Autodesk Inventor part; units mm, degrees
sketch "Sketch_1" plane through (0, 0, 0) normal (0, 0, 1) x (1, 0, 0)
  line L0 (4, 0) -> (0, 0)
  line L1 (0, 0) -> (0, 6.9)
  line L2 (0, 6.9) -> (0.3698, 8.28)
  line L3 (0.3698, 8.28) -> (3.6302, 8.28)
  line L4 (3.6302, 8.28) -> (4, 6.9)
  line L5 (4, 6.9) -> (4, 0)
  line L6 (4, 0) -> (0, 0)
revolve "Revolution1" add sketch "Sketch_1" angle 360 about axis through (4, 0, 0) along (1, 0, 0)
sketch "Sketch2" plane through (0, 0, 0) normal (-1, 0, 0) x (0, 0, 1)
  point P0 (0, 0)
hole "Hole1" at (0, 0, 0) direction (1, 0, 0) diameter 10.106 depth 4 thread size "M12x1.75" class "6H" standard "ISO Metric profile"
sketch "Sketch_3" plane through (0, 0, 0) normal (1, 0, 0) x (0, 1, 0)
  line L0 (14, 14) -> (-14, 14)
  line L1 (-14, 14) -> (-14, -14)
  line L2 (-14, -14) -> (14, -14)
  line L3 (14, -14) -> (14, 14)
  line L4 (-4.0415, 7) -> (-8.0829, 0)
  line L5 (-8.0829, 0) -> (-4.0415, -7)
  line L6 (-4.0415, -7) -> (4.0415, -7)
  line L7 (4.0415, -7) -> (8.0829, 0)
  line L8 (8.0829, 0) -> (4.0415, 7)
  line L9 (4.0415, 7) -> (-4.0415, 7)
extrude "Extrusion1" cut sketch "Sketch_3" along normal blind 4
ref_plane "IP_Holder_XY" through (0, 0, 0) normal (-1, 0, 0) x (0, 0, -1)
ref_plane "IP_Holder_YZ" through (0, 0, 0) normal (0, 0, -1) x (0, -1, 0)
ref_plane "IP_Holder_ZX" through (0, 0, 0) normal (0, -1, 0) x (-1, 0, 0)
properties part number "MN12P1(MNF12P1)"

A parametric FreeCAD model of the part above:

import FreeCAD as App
import Part
import Sketcher
from FreeCAD import Vector
Q = App.Units.Quantity

doc = App.newDocument("Part")
params = doc.addObject("Spreadsheet::Sheet", "Params")
for row, (alias, value) in enumerate([
    ("sketch1_width", "4 mm"),
    ("sketch1_height", "6.9 mm"),
    ("revolution_angle", "360 deg"),
    ("hole_diameter", "10.106 mm"),
    ("hole_depth", "4 mm"),
    ("sketch3_width", "28 mm"),
    ("pocket1_length", "4 mm"),
], start=1):
    params.set(f"A{row}", alias)
    params.set(f"B{row}", "=" + value)
    params.setAlias(f"B{row}", alias)

body = doc.addObject("PartDesign::Body", "Body")

# Sketch on XY plane
sketch1 = body.newObject("Sketcher::SketchObject", "Sketch")
sketch1.AttachmentSupport = (doc.getObject("XY_Plane"), [""])
sketch1.MapMode = "FlatFace"
sketch1.addGeometry(Part.LineSegment(Vector(0, 0, 0), Vector(4, 0, 0)), False)
sketch1.addGeometry(Part.LineSegment(Vector(4, 0, 0), Vector(4, 6.9, 0)), False)
sketch1.addGeometry(Part.LineSegment(Vector(4, 6.9, 0), Vector(3.6, 8.3, 0)), False)
sketch1.addGeometry(Part.LineSegment(Vector(3.6, 8.3, 0), Vector(0.4, 8.3, 0)), False)
sketch1.addGeometry(Part.LineSegment(Vector(0.4, 8.3, 0), Vector(0, 6.9, 0)), False)
sketch1.addGeometry(Part.LineSegment(Vector(0, 6.9, 0), Vector(0, 0, 0)), False)
sketch1.addConstraint(Sketcher.Constraint("Coincident", 0, 2, 1, 1))
sketch1.addConstraint(Sketcher.Constraint("Coincident", 1, 2, 2, 1))
sketch1.addConstraint(Sketcher.Constraint("Coincident", 2, 2, 3, 1))
sketch1.addConstraint(Sketcher.Constraint("Coincident", 3, 2, 4, 1))
sketch1.addConstraint(Sketcher.Constraint("Coincident", 4, 2, 5, 1))
sketch1.addConstraint(Sketcher.Constraint("Coincident", 5, 2, 0, 1))
sketch1.addConstraint(Sketcher.Constraint("Horizontal", 0))
sketch1.addConstraint(Sketcher.Constraint("Vertical", 1))
sketch1.addConstraint(Sketcher.Constraint("Horizontal", 3))
sketch1.addConstraint(Sketcher.Constraint("Vertical", 5))
sketch1.addConstraint(Sketcher.Constraint("Coincident", 5, 2, -1, 1))
sketch1.addConstraint(Sketcher.Constraint("Horizontal", 1, 2, 4, 2))
sketch1.addConstraint(Sketcher.Constraint("Equal", 2, 4))
sketch1.addConstraint(Sketcher.Constraint("DistanceX", 0, 1, 0, 2, Q("4 mm")))
sketch1.addConstraint(Sketcher.Constraint("Angle", 2, Q("105.0012 deg")))
sketch1.addConstraint(Sketcher.Constraint("DistanceY", 1, 1, 1, 2, Q("6.9 mm")))
sketch1.addConstraint(Sketcher.Constraint("DistanceY", -1, 1, 2, 2, Q("8.28 mm")))
sketch1.setExpression("Constraints[13]", "Params.sketch1_width")
sketch1.setExpression("Constraints[15]", "Params.sketch1_height")
revolution = body.newObject("PartDesign::Revolution", "Revolution")
revolution.Profile = sketch1
revolution.ReferenceAxis = (sketch1, ["H_Axis"])
revolution.setExpression("Angle", "Params.revolution_angle")

# Sketch on YZ plane
sketch2 = body.newObject("Sketcher::SketchObject", "Sketch001")
sketch2.AttachmentSupport = (doc.getObject("YZ_Plane"), [""])
sketch2.MapMode = "FlatFace"
sketch2.addGeometry(Part.Circle(Vector(0, 0, 0), Vector(0, 0, 1), 5), False)
sketch2.addConstraint(Sketcher.Constraint("Coincident", 0, 3, -1, 1))
sketch2.addConstraint(Sketcher.Constraint("Diameter", 0, Q("10.106 mm")))
doc.recompute()
hole = body.newObject("PartDesign::Hole", "Hole")
hole.Profile = sketch2
hole.ThreadType = "None"
hole.setExpression("Diameter", "Params.hole_diameter")
hole.DepthType = "Dimension"
hole.setExpression("Depth", "Params.hole_depth")
hole.DrillPoint = "Flat"
hole.Reversed = True

# Sketch on YZ plane
sketch3 = body.newObject("Sketcher::SketchObject", "Sketch002")
sketch3.AttachmentSupport = (doc.getObject("YZ_Plane"), [""])
sketch3.MapMode = "FlatFace"
sketch3.addGeometry(Part.LineSegment(Vector(14, -14, 0), Vector(14, 14, 0)), False)
sketch3.addGeometry(Part.LineSegment(Vector(14, 14, 0), Vector(-14, 14, 0)), False)
sketch3.addGeometry(Part.LineSegment(Vector(-14, 14, 0), Vector(-14, -14, 0)), False)
sketch3.addGeometry(Part.LineSegment(Vector(-14, -14, 0), Vector(14, -14, 0)), False)
sketch3.addGeometry(Part.LineSegment(Vector(-8, 0, 0), Vector(-4, 7, 0)), False)
sketch3.addGeometry(Part.LineSegment(Vector(-4, 7, 0), Vector(4, 7, 0)), False)
sketch3.addGeometry(Part.LineSegment(Vector(4, 7, 0), Vector(8, 0, 0)), False)
sketch3.addGeometry(Part.LineSegment(Vector(8, 0, 0), Vector(4, -7, 0)), False)
sketch3.addGeometry(Part.LineSegment(Vector(4, -7, 0), Vector(-4, -7, 0)), False)
sketch3.addGeometry(Part.LineSegment(Vector(-4, -7, 0), Vector(-8, 0, 0)), False)
sketch3.addConstraint(Sketcher.Constraint("Coincident", 0, 2, 1, 1))
sketch3.addConstraint(Sketcher.Constraint("Coincident", 1, 2, 2, 1))
sketch3.addConstraint(Sketcher.Constraint("Coincident", 2, 2, 3, 1))
sketch3.addConstraint(Sketcher.Constraint("Coincident", 3, 2, 0, 1))
sketch3.addConstraint(Sketcher.Constraint("Coincident", 4, 2, 5, 1))
sketch3.addConstraint(Sketcher.Constraint("Coincident", 5, 2, 6, 1))
sketch3.addConstraint(Sketcher.Constraint("Coincident", 6, 2, 7, 1))
sketch3.addConstraint(Sketcher.Constraint("Coincident", 7, 2, 8, 1))
sketch3.addConstraint(Sketcher.Constraint("Coincident", 8, 2, 9, 1))
sketch3.addConstraint(Sketcher.Constraint("Coincident", 9, 2, 4, 1))
sketch3.addConstraint(Sketcher.Constraint("Vertical", 0))
sketch3.addConstraint(Sketcher.Constraint("Horizontal", 1))
sketch3.addConstraint(Sketcher.Constraint("Vertical", 2))
sketch3.addConstraint(Sketcher.Constraint("Horizontal", 3))
sketch3.addConstraint(Sketcher.Constraint("Horizontal", 5))
sketch3.addConstraint(Sketcher.Constraint("Horizontal", 8))
sketch3.addConstraint(Sketcher.Constraint("Symmetric", 0, 2, 2, 2, -1, 1))
sketch3.addConstraint(Sketcher.Constraint("Symmetric", 4, 2, 7, 2, -1, 1))
sketch3.addConstraint(Sketcher.Constraint("Symmetric", 6, 2, 9, 2, -1, 1))
sketch3.addConstraint(Sketcher.Constraint("PointOnObject", 6, 2, -1))
sketch3.addConstraint(Sketcher.Constraint("Parallel", 6, 9))
sketch3.addConstraint(Sketcher.Constraint("Vertical", 5, 2, 7, 2))
sketch3.addConstraint(Sketcher.Constraint("Equal", 3, 0))
sketch3.addConstraint(Sketcher.Constraint("DistanceX", 1, 2, 1, 1, Q("28 mm")))
sketch3.addConstraint(Sketcher.Constraint("Angle", 4, Q("60.0003 deg")))
sketch3.addConstraint(Sketcher.Constraint("DistanceY", -1, 1, 4, 2, Q("7 mm")))
sketch3.addConstraint(Sketcher.Constraint("DistanceX", 5, 1, 5, 2, Q("8.083 mm")))
sketch3.setExpression("Constraints[23]", "Params.sketch3_width")
pocket1 = body.newObject("PartDesign::Pocket", "Pocket")
pocket1.Profile = sketch3
pocket1.setExpression("Length", "Params.pocket1_length")
pocket1.Reversed = True

doc.recompute()
